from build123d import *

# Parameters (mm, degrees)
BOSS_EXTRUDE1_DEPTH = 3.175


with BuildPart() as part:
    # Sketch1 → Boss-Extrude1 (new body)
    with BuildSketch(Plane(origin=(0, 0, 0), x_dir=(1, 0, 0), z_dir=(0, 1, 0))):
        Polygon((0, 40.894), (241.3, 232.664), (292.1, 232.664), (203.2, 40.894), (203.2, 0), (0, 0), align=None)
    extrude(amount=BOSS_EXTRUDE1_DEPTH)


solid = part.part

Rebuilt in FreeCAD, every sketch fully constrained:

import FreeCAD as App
import Part
import Sketcher
from FreeCAD import Vector
Q = App.Units.Quantity


def add_polygon(sketch, points):
    """Adds a closed chain of lines whose ends are joined by coincident constraints."""
    first, n = sketch.GeometryCount, len(points)
    for a, b in zip(points, points[1:] + points[:1]):
        sketch.addGeometry(Part.LineSegment(App.Vector(*a, 0), App.Vector(*b, 0)), False)
    for i in range(n):
        sketch.addConstraint(Sketcher.Constraint("Coincident", first + i, 2, first + (i + 1) % n, 1))

doc = App.newDocument("Part")
body = doc.addObject("PartDesign::Body", "Body")

# Sketch on XZ plane
sketch1 = body.newObject("Sketcher::SketchObject", "Sketch")
sketch1.AttachmentSupport = (doc.getObject("XZ_Plane"), [""])
sketch1.MapMode = "FlatFace"
add_polygon(sketch1, [(241.3, -232.664), (0, -40.894), (0, 0), (203.2, 0), (203.2, -40.894), (292.1, -232.664)])  # lines 0-5
sketch1.addConstraint([
    Sketcher.Constraint("Vertical", 1),
    Sketcher.Constraint("Horizontal", 2),
    Sketcher.Constraint("Vertical", 3),
    Sketcher.Constraint("Horizontal", 5),
    Sketcher.Constraint("Coincident", 1, 2, -1, 1),
    Sketcher.Constraint("Horizontal", 0, 2, 3, 2),
    Sketcher.Constraint("DistanceX", 2, 1, 2, 2, Q("8 in")),
    Sketcher.Constraint("DistanceX", 5, 2, 5, 1, Q("2 in")),
    Sketcher.Constraint("DistanceY", 1, 1, 1, 2, Q("1.61 in")),
    Sketcher.Constraint("DistanceX", -1, 1, 4, 2, Q("11.5 in")),
    Sketcher.Constraint("DistanceY", 4, 2, -1, 1, Q("9.16 in")),
])
pad1 = body.newObject("PartDesign::Pad", "Pad")
pad1.Profile = sketch1
pad1.Length = Q("0.125 in")
pad1.Reversed = True

doc.recompute()
